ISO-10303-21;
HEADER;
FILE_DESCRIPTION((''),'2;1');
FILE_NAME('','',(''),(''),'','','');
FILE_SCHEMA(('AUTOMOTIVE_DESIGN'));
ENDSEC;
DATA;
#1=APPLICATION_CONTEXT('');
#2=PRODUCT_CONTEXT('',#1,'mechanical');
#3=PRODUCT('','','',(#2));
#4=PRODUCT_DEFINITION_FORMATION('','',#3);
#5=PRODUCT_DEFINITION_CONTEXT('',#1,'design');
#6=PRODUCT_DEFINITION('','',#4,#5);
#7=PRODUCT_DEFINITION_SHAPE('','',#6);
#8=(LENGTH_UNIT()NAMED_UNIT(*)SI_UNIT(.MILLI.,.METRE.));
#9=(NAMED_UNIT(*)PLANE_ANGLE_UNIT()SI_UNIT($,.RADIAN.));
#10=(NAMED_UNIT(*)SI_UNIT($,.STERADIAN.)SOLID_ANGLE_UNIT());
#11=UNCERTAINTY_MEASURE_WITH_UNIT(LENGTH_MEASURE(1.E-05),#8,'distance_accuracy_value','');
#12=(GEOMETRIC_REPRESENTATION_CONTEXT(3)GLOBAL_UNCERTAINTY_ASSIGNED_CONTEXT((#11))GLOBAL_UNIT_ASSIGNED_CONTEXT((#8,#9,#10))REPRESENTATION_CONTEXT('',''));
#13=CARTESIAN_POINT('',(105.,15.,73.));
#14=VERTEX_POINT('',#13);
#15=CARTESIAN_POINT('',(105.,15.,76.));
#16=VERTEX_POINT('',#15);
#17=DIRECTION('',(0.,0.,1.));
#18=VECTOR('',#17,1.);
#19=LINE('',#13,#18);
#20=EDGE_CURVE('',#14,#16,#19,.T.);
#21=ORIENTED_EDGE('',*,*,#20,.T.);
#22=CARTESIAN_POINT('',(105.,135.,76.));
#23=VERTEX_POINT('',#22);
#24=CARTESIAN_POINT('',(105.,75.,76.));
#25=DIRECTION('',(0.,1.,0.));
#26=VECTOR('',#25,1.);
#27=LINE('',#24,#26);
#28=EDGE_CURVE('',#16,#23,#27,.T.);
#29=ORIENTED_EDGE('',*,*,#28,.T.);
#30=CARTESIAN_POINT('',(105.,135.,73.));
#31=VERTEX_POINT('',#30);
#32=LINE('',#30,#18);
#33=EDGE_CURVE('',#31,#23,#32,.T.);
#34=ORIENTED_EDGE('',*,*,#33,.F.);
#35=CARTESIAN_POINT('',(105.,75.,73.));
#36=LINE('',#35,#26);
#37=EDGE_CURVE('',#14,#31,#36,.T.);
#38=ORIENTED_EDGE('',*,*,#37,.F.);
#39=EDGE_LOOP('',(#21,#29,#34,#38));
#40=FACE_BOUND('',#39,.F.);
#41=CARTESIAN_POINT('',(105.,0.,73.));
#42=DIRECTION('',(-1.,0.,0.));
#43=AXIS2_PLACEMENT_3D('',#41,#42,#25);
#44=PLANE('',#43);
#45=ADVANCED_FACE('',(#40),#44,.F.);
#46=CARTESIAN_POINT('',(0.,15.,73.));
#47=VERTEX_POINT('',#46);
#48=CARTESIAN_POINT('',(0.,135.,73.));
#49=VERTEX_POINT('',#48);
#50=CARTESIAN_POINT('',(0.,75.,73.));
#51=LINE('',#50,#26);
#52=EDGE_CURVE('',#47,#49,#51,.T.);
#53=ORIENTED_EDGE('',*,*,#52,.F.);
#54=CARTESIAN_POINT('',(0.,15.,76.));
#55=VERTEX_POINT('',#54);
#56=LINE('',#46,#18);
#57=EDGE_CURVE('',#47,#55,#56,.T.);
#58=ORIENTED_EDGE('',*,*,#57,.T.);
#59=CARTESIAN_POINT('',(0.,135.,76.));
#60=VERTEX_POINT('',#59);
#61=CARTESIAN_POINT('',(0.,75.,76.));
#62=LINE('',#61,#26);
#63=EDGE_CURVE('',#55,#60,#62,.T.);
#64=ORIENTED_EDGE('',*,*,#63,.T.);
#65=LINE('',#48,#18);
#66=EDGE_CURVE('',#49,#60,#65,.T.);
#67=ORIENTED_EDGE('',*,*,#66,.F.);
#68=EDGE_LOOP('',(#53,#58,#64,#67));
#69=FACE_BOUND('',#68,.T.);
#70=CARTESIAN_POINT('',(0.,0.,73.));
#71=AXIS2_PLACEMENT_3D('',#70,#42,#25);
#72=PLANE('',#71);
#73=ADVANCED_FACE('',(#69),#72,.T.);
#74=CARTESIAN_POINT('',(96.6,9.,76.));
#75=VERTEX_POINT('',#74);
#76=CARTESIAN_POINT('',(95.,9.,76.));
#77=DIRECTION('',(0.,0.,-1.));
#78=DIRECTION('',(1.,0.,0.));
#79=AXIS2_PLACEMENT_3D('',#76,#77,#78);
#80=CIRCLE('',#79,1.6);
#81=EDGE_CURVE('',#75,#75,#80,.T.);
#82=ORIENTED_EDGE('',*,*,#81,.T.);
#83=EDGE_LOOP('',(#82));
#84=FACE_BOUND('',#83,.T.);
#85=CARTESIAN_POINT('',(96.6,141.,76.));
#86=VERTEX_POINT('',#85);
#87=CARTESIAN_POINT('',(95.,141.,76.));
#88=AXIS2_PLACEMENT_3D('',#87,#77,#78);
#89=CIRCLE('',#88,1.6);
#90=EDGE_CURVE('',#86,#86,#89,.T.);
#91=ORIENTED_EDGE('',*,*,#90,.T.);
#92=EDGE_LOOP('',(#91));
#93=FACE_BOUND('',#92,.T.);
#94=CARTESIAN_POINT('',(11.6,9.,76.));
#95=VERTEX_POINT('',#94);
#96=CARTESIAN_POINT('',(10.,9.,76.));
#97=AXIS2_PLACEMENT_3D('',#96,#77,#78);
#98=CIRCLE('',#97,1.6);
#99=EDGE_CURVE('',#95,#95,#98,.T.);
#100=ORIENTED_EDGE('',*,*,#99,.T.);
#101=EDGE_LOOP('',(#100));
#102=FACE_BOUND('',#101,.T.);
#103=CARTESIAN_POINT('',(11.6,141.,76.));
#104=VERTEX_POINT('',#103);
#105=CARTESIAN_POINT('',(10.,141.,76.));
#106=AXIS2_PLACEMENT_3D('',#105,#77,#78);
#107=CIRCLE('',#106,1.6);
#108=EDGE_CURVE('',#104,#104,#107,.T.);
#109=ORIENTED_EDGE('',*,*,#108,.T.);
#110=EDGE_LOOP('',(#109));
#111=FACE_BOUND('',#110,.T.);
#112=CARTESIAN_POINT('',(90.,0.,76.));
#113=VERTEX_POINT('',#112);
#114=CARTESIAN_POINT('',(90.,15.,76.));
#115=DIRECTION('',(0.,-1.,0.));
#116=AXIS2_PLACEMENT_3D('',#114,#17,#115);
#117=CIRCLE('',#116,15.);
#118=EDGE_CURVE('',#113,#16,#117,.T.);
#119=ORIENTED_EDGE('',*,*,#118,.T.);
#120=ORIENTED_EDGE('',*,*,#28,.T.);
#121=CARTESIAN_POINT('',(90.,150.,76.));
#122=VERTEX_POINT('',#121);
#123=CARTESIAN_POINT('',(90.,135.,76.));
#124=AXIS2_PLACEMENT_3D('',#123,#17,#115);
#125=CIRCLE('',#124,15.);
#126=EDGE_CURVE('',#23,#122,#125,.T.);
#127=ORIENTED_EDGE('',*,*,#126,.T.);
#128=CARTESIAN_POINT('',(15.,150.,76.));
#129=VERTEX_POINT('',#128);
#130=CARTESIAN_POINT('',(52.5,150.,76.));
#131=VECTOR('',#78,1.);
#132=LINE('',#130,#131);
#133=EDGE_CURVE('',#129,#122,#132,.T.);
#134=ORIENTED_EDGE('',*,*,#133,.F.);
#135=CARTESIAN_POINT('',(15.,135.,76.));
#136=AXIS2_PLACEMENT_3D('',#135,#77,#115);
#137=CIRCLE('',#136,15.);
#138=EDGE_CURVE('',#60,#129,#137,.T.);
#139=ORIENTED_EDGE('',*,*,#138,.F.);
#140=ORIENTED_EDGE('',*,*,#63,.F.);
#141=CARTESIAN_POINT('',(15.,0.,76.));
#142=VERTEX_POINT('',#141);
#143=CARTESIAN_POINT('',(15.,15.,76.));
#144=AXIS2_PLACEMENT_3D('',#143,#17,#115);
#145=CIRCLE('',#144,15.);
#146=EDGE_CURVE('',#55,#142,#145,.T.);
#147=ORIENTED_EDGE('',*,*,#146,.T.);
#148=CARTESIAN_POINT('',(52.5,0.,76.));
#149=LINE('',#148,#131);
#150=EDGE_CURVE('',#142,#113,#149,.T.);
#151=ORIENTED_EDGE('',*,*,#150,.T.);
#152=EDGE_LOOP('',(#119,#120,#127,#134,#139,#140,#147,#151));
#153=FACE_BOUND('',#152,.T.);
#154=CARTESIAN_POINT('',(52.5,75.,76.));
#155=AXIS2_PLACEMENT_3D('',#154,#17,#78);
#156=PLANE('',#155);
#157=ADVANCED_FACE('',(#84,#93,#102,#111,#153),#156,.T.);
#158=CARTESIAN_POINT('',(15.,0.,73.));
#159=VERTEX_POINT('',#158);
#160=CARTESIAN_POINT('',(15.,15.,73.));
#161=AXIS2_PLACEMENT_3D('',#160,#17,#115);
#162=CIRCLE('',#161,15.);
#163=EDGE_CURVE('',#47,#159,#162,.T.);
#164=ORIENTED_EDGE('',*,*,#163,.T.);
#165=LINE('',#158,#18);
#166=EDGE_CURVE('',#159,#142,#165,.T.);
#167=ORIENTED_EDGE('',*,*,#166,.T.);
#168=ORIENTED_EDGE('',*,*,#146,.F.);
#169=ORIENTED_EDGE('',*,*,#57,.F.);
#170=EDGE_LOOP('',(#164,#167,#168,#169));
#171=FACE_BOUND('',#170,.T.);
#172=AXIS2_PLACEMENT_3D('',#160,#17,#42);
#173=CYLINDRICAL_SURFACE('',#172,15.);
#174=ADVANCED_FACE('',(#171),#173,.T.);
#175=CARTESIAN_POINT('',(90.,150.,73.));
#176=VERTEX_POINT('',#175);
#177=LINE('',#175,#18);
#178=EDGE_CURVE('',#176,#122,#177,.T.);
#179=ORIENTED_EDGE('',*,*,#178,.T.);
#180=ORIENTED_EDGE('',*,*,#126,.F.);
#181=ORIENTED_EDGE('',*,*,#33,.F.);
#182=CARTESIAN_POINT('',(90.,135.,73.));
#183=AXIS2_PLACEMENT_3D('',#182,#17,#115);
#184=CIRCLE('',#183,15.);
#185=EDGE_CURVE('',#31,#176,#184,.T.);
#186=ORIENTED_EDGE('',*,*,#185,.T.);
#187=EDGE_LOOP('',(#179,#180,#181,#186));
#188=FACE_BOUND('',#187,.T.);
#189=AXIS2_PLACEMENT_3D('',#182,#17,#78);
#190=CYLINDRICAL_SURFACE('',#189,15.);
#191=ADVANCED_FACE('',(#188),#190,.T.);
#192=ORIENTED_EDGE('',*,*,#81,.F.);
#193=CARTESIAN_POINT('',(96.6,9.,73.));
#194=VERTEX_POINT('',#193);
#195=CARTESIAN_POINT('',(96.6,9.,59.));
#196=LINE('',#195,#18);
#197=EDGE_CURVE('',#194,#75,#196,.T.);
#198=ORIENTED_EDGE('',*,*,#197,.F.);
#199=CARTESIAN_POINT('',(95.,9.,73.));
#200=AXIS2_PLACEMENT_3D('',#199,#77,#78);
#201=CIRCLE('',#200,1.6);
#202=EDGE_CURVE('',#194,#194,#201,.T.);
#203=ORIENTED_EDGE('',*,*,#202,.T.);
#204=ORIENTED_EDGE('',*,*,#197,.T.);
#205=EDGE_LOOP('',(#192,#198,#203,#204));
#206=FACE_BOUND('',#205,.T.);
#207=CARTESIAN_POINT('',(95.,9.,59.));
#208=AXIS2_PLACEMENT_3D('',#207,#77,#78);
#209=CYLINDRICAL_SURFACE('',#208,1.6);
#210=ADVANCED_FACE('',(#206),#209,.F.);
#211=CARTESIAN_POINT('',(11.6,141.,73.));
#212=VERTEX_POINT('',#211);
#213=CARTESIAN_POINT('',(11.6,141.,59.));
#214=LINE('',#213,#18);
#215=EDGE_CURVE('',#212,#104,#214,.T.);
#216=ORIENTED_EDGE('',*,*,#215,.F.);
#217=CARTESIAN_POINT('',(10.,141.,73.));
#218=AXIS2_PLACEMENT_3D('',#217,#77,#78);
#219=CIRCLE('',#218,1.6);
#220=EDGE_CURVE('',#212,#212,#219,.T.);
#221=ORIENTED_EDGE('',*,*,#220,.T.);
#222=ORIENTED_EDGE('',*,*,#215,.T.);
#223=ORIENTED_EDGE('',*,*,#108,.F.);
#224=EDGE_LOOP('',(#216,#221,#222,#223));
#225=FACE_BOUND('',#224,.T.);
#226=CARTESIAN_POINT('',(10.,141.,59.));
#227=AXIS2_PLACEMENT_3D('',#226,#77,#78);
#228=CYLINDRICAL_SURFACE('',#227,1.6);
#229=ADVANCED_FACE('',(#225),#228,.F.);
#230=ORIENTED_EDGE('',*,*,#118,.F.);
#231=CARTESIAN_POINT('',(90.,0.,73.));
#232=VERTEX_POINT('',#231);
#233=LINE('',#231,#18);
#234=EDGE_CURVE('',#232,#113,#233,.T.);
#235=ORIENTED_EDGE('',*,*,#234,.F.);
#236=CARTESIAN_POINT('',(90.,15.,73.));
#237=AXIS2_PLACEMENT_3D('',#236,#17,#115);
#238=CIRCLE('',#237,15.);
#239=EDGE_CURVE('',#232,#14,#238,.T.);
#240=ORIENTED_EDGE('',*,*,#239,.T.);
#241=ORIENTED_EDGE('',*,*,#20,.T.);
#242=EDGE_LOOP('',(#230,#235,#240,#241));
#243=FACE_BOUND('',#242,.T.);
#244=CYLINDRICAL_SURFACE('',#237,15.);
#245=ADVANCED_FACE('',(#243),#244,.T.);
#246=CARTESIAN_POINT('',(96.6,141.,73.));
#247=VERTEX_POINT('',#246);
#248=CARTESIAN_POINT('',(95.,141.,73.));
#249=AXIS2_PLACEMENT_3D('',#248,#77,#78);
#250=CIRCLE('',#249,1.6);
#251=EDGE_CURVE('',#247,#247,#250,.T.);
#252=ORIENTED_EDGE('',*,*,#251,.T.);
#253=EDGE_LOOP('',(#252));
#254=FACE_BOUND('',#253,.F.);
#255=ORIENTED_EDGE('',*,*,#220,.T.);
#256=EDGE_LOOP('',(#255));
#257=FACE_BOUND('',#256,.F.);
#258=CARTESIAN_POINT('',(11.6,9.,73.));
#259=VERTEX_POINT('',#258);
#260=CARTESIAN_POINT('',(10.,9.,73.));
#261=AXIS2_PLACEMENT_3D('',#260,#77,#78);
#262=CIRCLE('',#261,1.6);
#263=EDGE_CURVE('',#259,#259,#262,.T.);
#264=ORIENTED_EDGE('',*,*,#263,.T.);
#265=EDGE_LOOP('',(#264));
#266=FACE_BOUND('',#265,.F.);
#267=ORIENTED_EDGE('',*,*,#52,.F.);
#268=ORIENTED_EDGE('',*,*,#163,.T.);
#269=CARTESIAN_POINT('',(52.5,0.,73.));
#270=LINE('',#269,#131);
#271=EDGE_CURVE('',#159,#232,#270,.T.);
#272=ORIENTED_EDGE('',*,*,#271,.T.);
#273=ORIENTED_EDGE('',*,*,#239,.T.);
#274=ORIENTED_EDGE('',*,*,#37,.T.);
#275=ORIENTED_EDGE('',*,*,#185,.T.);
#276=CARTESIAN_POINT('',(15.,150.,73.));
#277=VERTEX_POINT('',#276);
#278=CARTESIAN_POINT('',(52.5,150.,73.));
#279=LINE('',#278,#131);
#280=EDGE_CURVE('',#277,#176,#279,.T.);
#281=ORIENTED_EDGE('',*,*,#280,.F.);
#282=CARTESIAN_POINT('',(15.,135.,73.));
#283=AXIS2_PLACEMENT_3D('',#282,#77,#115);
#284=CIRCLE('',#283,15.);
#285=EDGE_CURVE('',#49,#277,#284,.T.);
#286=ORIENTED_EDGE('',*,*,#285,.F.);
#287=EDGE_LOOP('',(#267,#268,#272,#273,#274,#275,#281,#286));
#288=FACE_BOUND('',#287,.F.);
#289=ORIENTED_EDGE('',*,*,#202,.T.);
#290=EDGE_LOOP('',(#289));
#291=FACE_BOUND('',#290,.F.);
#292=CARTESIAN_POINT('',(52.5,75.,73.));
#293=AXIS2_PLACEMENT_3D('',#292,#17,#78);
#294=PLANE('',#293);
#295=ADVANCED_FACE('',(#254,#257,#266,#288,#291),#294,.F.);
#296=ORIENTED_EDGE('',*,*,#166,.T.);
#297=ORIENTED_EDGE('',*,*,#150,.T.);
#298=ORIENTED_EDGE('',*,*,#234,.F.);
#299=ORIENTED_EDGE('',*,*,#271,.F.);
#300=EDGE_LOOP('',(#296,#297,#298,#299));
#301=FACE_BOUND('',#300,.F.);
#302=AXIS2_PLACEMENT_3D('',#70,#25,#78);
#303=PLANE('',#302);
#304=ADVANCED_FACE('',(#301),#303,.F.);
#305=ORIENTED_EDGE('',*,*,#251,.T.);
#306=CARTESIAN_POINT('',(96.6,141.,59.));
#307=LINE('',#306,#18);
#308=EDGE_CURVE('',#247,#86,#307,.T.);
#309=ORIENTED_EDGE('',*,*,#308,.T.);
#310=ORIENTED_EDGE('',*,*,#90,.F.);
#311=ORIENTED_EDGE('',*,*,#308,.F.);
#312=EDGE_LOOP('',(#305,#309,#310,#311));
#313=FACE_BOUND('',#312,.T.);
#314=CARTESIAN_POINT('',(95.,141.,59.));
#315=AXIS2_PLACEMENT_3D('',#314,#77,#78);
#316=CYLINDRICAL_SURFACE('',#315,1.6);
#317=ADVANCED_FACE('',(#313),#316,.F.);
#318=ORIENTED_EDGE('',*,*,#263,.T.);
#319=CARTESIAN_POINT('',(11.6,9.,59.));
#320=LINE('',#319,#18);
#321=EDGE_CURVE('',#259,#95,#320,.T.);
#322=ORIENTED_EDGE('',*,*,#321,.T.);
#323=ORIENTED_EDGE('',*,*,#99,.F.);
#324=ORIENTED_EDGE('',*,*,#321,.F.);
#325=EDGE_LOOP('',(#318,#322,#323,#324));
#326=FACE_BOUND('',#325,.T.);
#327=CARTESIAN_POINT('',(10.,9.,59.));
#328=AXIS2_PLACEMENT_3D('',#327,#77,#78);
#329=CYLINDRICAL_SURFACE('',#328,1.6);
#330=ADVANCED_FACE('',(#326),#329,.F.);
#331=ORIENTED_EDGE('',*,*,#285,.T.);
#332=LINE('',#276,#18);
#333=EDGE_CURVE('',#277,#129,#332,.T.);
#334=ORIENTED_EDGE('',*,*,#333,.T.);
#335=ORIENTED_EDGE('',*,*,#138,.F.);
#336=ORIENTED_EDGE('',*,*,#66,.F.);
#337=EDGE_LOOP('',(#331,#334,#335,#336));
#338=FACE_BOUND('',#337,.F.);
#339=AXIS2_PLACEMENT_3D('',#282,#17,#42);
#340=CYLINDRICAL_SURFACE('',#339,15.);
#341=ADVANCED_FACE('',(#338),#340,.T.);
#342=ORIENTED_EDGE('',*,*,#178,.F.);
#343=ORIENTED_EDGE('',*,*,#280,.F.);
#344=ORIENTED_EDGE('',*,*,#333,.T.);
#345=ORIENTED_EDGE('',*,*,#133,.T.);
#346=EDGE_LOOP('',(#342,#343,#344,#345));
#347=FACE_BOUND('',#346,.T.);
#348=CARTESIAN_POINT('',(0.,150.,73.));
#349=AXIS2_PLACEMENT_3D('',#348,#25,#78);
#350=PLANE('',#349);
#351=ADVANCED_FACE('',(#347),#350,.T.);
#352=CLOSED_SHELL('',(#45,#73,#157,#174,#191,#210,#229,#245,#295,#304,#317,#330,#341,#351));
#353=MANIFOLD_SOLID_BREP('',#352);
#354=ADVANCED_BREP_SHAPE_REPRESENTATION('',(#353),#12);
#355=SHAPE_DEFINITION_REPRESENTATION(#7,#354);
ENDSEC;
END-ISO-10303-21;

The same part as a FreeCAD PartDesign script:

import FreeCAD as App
import Part
import Sketcher

V = App.Vector
Q = App.Units.Quantity


def edges_at(feature, points):
    """Names of the edges that pass closest to the given points."""
    edges = feature.Shape.Edges
    near = lambda p: min(range(len(edges)), key=lambda i: edges[i].distToShape(Part.Vertex(*p))[0])
    return sorted({f"Edge{near(p) + 1}" for p in points})


def add_polygon(sketch, points):
    """Adds a closed chain of lines whose ends are joined by coincident constraints."""
    first, n = sketch.GeometryCount, len(points)
    for a, b in zip(points, points[1:] + points[:1]):
        sketch.addGeometry(Part.LineSegment(App.Vector(*a, 0), App.Vector(*b, 0)), False)
    for i in range(n):
        sketch.addConstraint(Sketcher.Constraint("Coincident", first + i, 2, first + (i + 1) % n, 1))

doc = App.newDocument("Part")
body = doc.addObject("PartDesign::Body", "Body")

# Sketch on XY plane
sketch1 = body.newObject("Sketcher::SketchObject", "Sketch")
sketch1.AttachmentSupport = (doc.getObject("XY_Plane"), [""])
sketch1.MapMode = "FlatFace"
sketch1.AttachmentOffset = App.Placement(V(0, 0, 51), App.Rotation())
sketch1.addGeometry(Part.Circle(V(10, 141, 0), V(0, 0, 1), 1.6), False)
sketch1.addConstraint([
    Sketcher.Constraint("Diameter", 0, Q("3.2 mm")),
    Sketcher.Constraint("DistanceX", -1, 1, 0, 3, Q("10 mm")),
    Sketcher.Constraint("DistanceY", -1, 1, 0, 3, Q("141 mm")),
])
pad1 = body.newObject("PartDesign::Pad", "Pad")
pad1.Profile = sketch1
pad1.Length = 22
body2 = doc.addObject("PartDesign::Body", "Body001")

# Sketch on XY plane
sketch2 = body2.newObject("Sketcher::SketchObject", "Sketch001")
sketch2.AttachmentSupport = (doc.getObject("XY_Plane001"), [""])
sketch2.MapMode = "FlatFace"
sketch2.AttachmentOffset = App.Placement(V(0, 0, 51), App.Rotation())
sketch2.addGeometry(Part.Circle(V(95, 141, 0), V(0, 0, 1), 1.6), False)
sketch2.addConstraint([
    Sketcher.Constraint("Diameter", 0, Q("3.2 mm")),
    Sketcher.Constraint("DistanceX", -1, 1, 0, 3, Q("95 mm")),
    Sketcher.Constraint("DistanceY", -1, 1, 0, 3, Q("141 mm")),
])
pad2 = body2.newObject("PartDesign::Pad", "Pad001")
pad2.Profile = sketch2
pad2.Length = 22
body3 = doc.addObject("PartDesign::Body", "Body002")

# Sketch on XY plane
sketch3 = body3.newObject("Sketcher::SketchObject", "Sketch002")
sketch3.AttachmentSupport = (doc.getObject("XY_Plane002"), [""])
sketch3.MapMode = "FlatFace"
sketch3.AttachmentOffset = App.Placement(V(0, 0, 51), App.Rotation())
sketch3.addGeometry(Part.Circle(V(95, 9, 0), V(0, 0, 1), 1.6), False)
sketch3.addConstraint([
    Sketcher.Constraint("Diameter", 0, Q("3.2 mm")),
    Sketcher.Constraint("DistanceX", -1, 1, 0, 3, Q("95 mm")),
    Sketcher.Constraint("DistanceY", -1, 1, 0, 3, Q("9 mm")),
])
pad3 = body3.newObject("PartDesign::Pad", "Pad002")
pad3.Profile = sketch3
pad3.Length = 22
body4 = doc.addObject("PartDesign::Body", "Body003")
body4.AllowCompound = True

# Sketch on XY plane
sketch4 = body4.newObject("Sketcher::SketchObject", "Sketch003")
sketch4.AttachmentSupport = (doc.getObject("XY_Plane003"), [""])
sketch4.MapMode = "FlatFace"
sketch4.AttachmentOffset = App.Placement(V(0, 0, 51), App.Rotation())
sketch4.addGeometry(Part.Circle(V(10, 9, 0), V(0, 0, 1), 1.6), False)
sketch4.addConstraint([
    Sketcher.Constraint("Diameter", 0, Q("3.2 mm")),
    Sketcher.Constraint("DistanceX", -1, 1, 0, 3, Q("10 mm")),
    Sketcher.Constraint("DistanceY", -1, 1, 0, 3, Q("9 mm")),
])
pad4 = body4.newObject("PartDesign::Pad", "Pad003")
pad4.Profile = sketch4
pad4.Length = 22
doc.recompute()

boolean = body4.newObject("PartDesign::Boolean", "Boolean")
boolean.Type = "Fuse"
boolean.addObjects([body])
doc.recompute()

boolean2 = body4.newObject("PartDesign::Boolean", "Boolean001")
boolean2.Type = "Fuse"
boolean2.addObjects([body2])
doc.recompute()

boolean3 = body4.newObject("PartDesign::Boolean", "Boolean002")
boolean3.Type = "Fuse"
boolean3.addObjects([body3])
body5 = doc.addObject("PartDesign::Body", "Body004")
body5.AllowCompound = True
doc.recompute()

body4.Placement = App.Placement(V(0, 0, 7), App.Rotation(V(0, 0, 1), 0))
boolean4 = body5.newObject("PartDesign::Boolean", "Boolean003")
boolean4.Type = "Fuse"
boolean4.addObjects([body4])
body6 = doc.addObject("PartDesign::Body", "Body005")

# Sketch on XY plane
sketch5 = body6.newObject("Sketcher::SketchObject", "Sketch004")
sketch5.AttachmentSupport = (doc.getObject("XY_Plane005"), [""])
sketch5.MapMode = "FlatFace"
add_polygon(sketch5, [(0, 150), (0, 0), (105, 0), (105, 150)])  # lines 0-3
sketch5.addConstraint([
    Sketcher.Constraint("Vertical", 0),
    Sketcher.Constraint("Horizontal", 1),
    Sketcher.Constraint("Vertical", 2),
    Sketcher.Constraint("Horizontal", 3),
    Sketcher.Constraint("Coincident", 0, 2, -1, 1),
    Sketcher.Constraint("DistanceX", 1, 1, 1, 2, Q("105 mm")),
    Sketcher.Constraint("DistanceY", 0, 2, 0, 1, Q("150 mm")),
])
pad5 = body6.newObject("PartDesign::Pad", "Pad004")
pad5.Profile = sketch5
pad5.Length = 3
doc.recompute()

fillet = body6.newObject("PartDesign::Fillet", "Fillet")
fillet.Base = (pad5, edges_at(pad5, [
    (0, 0, 1.5),
    (0, 150, 1.5),
    (105, 0, 1.5),
    (105, 150, 1.5),
]))
fillet.Radius = 15
body7 = doc.addObject("PartDesign::Body", "Body006")
doc.recompute()

body6.Placement = App.Placement(V(0, 0, 72), App.Rotation(V(0, 0, 1), 0))
boolean5 = body7.newObject("PartDesign::Boolean", "Boolean004")
boolean5.Type = "Fuse"
boolean5.addObjects([body6])
doc.recompute()

boolean6 = body7.newObject("PartDesign::Boolean", "Boolean005")
boolean6.Type = "Cut"
boolean6.addObjects([body5])
body8 = doc.addObject("PartDesign::Body", "Body007")
doc.recompute()

body7.Placement = App.Placement(V(0, 0, 1), App.Rotation(V(0, 0, 1), 0))
boolean7 = body8.newObject("PartDesign::Boolean", "Boolean006")
boolean7.Type = "Fuse"
boolean7.addObjects([body7])

doc.recompute()
